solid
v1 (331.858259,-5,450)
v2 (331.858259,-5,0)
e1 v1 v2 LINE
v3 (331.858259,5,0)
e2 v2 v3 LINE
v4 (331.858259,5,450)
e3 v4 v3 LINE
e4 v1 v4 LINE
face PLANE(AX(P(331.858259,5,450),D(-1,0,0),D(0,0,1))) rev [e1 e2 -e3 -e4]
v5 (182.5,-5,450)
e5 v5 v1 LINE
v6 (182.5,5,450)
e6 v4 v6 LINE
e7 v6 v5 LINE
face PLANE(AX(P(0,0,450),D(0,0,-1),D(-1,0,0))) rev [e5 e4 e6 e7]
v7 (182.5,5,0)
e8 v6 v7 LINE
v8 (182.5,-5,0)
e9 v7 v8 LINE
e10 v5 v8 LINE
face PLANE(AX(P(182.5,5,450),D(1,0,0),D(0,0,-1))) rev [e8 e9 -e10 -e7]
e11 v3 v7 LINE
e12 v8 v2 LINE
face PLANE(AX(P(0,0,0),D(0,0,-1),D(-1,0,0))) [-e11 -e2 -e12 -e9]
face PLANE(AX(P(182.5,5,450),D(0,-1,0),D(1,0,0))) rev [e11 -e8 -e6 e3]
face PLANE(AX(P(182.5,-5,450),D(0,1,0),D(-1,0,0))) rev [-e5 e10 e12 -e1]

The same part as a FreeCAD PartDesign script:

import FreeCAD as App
import Part
import Sketcher
Q = App.Units.Quantity


def add_polygon(sketch, points):
    """Adds a closed chain of lines whose ends are joined by coincident constraints."""
    first, n = sketch.GeometryCount, len(points)
    for a, b in zip(points, points[1:] + points[:1]):
        sketch.addGeometry(Part.LineSegment(App.Vector(*a, 0), App.Vector(*b, 0)), False)
    for i in range(n):
        sketch.addConstraint(Sketcher.Constraint("Coincident", first + i, 2, first + (i + 1) % n, 1))

doc = App.newDocument("Part")
body = doc.addObject("PartDesign::Body", "Body")

# Sketch on XY plane
sketch1 = body.newObject("Sketcher::SketchObject", "Sketch")
sketch1.AttachmentSupport = (doc.getObject("XY_Plane"), [""])
sketch1.MapMode = "FlatFace"
add_polygon(sketch1, [(182.5, 5), (182.5, -5), (331.858259, -5), (331.858259, 5)])  # lines 0-3
sketch1.addConstraint(Sketcher.Constraint("Vertical", 0))
sketch1.addConstraint(Sketcher.Constraint("Horizontal", 1))
sketch1.addConstraint(Sketcher.Constraint("Vertical", 2))
sketch1.addConstraint(Sketcher.Constraint("Horizontal", 3))
sketch1.addConstraint(Sketcher.Constraint("DistanceY", 0, 2, 0, 1, Q("10 mm")))
sketch1.addConstraint(Sketcher.Constraint("DistanceY", 0, 2, -1, 1, Q("5 mm")))
sketch1.addConstraint(Sketcher.Constraint("DistanceX", -1, 1, 0, 2, Q("182.5 mm")))
sketch1.addConstraint(Sketcher.Constraint("DistanceX", 1, 1, 1, 2, Q("149.358259 mm")))
pad1 = body.newObject("PartDesign::Pad", "Pad")
pad1.Profile = sketch1
pad1.Length = 450

doc.recompute()
